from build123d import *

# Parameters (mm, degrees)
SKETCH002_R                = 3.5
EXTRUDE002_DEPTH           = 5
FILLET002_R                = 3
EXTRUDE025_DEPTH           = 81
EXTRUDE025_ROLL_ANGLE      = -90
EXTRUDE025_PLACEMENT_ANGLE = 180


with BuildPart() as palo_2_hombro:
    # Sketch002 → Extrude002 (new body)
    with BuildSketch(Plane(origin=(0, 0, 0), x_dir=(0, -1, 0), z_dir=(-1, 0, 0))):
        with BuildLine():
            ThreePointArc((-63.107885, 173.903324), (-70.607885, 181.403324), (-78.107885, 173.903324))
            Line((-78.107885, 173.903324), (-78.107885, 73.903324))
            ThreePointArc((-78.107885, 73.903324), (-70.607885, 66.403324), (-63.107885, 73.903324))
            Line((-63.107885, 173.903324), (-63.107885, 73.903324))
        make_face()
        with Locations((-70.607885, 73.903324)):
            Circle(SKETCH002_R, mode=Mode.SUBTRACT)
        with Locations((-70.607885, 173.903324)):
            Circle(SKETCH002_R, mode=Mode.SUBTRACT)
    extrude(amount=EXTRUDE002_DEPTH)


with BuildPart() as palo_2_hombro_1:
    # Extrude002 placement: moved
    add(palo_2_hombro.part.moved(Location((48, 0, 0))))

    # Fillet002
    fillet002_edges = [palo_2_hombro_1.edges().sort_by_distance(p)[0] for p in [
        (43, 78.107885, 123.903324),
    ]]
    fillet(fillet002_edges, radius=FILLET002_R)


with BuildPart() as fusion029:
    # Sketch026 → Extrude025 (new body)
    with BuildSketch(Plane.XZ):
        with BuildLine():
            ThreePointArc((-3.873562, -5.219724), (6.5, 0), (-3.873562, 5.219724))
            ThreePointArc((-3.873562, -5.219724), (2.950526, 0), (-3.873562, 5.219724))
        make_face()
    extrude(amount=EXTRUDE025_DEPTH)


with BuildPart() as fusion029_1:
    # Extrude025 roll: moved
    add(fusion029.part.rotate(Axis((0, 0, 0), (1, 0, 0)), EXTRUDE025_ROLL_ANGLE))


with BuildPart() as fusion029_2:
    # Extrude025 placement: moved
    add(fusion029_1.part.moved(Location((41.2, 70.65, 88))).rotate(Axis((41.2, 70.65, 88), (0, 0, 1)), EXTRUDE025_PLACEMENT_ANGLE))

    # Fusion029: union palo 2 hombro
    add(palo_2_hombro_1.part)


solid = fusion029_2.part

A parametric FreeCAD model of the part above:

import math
import FreeCAD as App
import Part
import Sketcher

V = App.Vector


def edges_at(feature, points):
    """Names of the edges that pass closest to the given points."""
    edges = feature.Shape.Edges
    near = lambda p: min(range(len(edges)), key=lambda i: edges[i].distToShape(Part.Vertex(*p))[0])
    return sorted({f"Edge{near(p) + 1}" for p in points})

doc = App.newDocument("Part")
body = doc.addObject("PartDesign::Body", "Body")

# Sketch on YZ plane
sketch1 = doc.addObject("Sketcher::SketchObject", "Sketch")
body.addObject(sketch1)
sketch1.AttachmentSupport = (doc.YZ_Plane, [""])
sketch1.MapMode = "FlatFace"
sketch1.addGeometry([
    Part.ArcOfCircle(Part.Circle(V(70.6, 173.9, 0), V(0, 0, 1), 7.5), math.radians(0), math.radians(180)),  # 0
    Part.LineSegment(V(78.1, 173.9, 0), V(78.1, 73.9, 0)),  # 1
    Part.ArcOfCircle(Part.Circle(V(70.6, 73.9, 0), V(0, 0, 1), 7.5), math.radians(180), math.radians(360)),  # 2
    Part.LineSegment(V(63.1, 73.9, 0), V(63.1, 173.9, 0)),  # 3
    Part.Circle(V(70.6, 73.9, 0), V(0, 0, 1), 3.5),  # 4
    Part.Circle(V(70.6, 173.9, 0), V(0, 0, 1), 3.5),  # 5
], False)
sketch1.addConstraint([
    Sketcher.Constraint("Tangent", 0, 1, 1, 1),
    Sketcher.Constraint("Tangent", 1, 2, 2, 2),
    Sketcher.Constraint("Tangent", 2, 1, 3, 1),
    Sketcher.Constraint("Tangent", 3, 2, 0, 2),
    Sketcher.Constraint("Vertical", 1),
    Sketcher.Constraint("Vertical", 3),
    Sketcher.Constraint("Coincident", 4, 3, 2, 3),
    Sketcher.Constraint("Coincident", 5, 3, 0, 3),
    Sketcher.Constraint("Equal", 4, 5),
    Sketcher.Constraint("Diameter", 4, 7.0),
    Sketcher.Constraint("Radius", 0, 7.5),
    Sketcher.Constraint("DistanceY", 1, 2, 1, 1, 100.0),
    Sketcher.Constraint("DistanceX", -1, 1, 0, 3, 70.607885),
    Sketcher.Constraint("DistanceY", -1, 1, 0, 3, 173.903324),
])
pad1 = doc.addObject("PartDesign::Pad", "Pad")
body.addObject(pad1)
pad1.Profile = sketch1
pad1.Length = 5
pad1.Reversed = True
body2 = doc.addObject("PartDesign::Body", "Body001")
doc.recompute()

body.Placement = App.Placement(V(48, 0, 0), App.Rotation(V(0, 0, 1), 0))
boolean = doc.addObject("PartDesign::Boolean", "Boolean")
body2.addObject(boolean)
boolean.Type = "Fuse"
boolean.addObjects([body])
doc.recompute()

fillet = doc.addObject("PartDesign::Fillet", "Fillet")
body2.addObject(fillet)
fillet.Base = (boolean, edges_at(boolean, [(43, 78.108, 123.903)]))
fillet.Radius = 3
body3 = doc.addObject("PartDesign::Body", "Body002")

# Sketch on XZ plane
sketch2 = doc.addObject("Sketcher::SketchObject", "Sketch001")
body3.addObject(sketch2)
sketch2.AttachmentSupport = (doc.getObject("XZ_Plane002"), [""])
sketch2.MapMode = "FlatFace"
sketch2.addGeometry([
    Part.ArcOfCircle(Part.Circle(V(0, 0, 0), V(0, 0, 1), 7), math.radians(-127), math.radians(127)),
    Part.ArcOfCircle(Part.Circle(V(-2, 0, 0), V(0, 0, 1), 5), math.radians(-105), math.radians(105)),
], False)
sketch2.addConstraint([
    Sketcher.Constraint("Coincident", 0, 1, 1, 1),
    Sketcher.Constraint("Coincident", 1, 2, 0, 2),
    Sketcher.Constraint("Coincident", 0, 3, -1, 1),
    Sketcher.Constraint("PointOnObject", 1, 3, -1),
    Sketcher.Constraint("Radius", 0, 6.5),
    Sketcher.Constraint("Radius", 1, 5.408319),
    Sketcher.Constraint("DistanceX", 0, 1, -1, 1, 3.873562),
])
pad2 = doc.addObject("PartDesign::Pad", "Pad001")
body3.addObject(pad2)
pad2.Profile = sketch2
pad2.Length = 81
body4 = doc.addObject("PartDesign::Body", "Body003")
doc.recompute()

body3.Placement = App.Placement(V(0, 0, 0), App.Rotation(V(1, 0, 0), 270))
boolean2 = doc.addObject("PartDesign::Boolean", "Boolean001")
body4.addObject(boolean2)
boolean2.Type = "Fuse"
boolean2.addObjects([body3])
body5 = doc.addObject("PartDesign::Body", "Body004")
doc.recompute()

body4.Placement = App.Placement(V(41.2, 70.65, 88), App.Rotation(V(0, 0, 1), 180))
boolean3 = doc.addObject("PartDesign::Boolean", "Boolean002")
body5.addObject(boolean3)
boolean3.Type = "Fuse"
boolean3.addObjects([body4])
doc.recompute()

boolean4 = doc.addObject("PartDesign::Boolean", "Boolean003")
body5.addObject(boolean4)
boolean4.Type = "Fuse"
boolean4.addObjects([body2])

doc.recompute()
